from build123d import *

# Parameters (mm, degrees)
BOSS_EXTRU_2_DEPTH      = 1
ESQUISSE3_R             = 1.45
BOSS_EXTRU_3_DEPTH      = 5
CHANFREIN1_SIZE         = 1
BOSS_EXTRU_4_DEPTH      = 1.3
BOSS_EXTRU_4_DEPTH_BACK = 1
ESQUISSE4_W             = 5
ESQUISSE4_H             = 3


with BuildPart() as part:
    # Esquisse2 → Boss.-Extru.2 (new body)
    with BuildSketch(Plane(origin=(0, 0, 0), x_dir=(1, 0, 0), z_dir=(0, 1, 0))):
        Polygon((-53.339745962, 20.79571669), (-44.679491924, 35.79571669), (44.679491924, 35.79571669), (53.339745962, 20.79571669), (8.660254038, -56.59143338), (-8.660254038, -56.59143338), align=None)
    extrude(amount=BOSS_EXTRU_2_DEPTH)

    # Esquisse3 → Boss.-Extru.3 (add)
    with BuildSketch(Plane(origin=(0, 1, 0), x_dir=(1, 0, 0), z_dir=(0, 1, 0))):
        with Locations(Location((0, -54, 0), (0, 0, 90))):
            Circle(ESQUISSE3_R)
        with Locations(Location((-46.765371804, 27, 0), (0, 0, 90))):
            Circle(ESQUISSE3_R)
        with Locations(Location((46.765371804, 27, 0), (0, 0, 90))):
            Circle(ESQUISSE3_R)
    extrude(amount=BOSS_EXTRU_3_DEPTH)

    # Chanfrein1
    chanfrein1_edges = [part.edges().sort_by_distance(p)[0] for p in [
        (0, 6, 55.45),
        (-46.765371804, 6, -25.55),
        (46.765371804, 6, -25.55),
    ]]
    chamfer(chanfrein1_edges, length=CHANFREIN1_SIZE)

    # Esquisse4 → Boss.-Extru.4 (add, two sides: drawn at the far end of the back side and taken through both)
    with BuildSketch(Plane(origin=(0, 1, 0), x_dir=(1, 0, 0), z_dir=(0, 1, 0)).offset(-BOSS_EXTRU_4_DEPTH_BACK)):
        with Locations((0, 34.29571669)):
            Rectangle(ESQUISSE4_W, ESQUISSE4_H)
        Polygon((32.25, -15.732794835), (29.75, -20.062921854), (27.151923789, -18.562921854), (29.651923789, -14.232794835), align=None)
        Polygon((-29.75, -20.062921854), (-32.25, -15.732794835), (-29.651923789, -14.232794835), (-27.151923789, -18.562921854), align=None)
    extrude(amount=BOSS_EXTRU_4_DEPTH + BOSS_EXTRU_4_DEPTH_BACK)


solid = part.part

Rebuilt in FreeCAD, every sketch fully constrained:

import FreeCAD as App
import Part
import Sketcher
Q = App.Units.Quantity


def edges_at(feature, points):
    """Names of the edges that pass closest to the given points."""
    edges = feature.Shape.Edges
    near = lambda p: min(range(len(edges)), key=lambda i: edges[i].distToShape(Part.Vertex(*p))[0])
    return sorted({f"Edge{near(p) + 1}" for p in points})

doc = App.newDocument("Part")
params = doc.addObject("Spreadsheet::Sheet", "Params")
for row, (alias, value) in enumerate([
    ("pad1_length", "1 mm"),
    ("sketch2_diameter", "2.9 mm"),
    ("pad2_length", "5 mm"),
    ("chamfer_size", "1 mm"),
    ("sketch3_width", "5 mm"),
    ("sketch3_height", "3 mm"),
    ("sketch3_length", "5 mm"),
    ("sketch3_length2", "3 mm"),
    ("pad3_length", "1.3 mm"),
    ("pad3_length2", "1 mm"),
], start=1):
    params.set(f"A{row}", alias)
    params.set(f"B{row}", "=" + value)
    params.setAlias(f"B{row}", alias)

body = doc.addObject("PartDesign::Body", "Body")

# Sketch on XZ plane
sketch1 = doc.addObject("Sketcher::SketchObject", "Sketch")
body.addObject(sketch1)
sketch1.AttachmentSupport = (doc.XZ_Plane, [""])
sketch1.MapMode = "FlatFace"
sketch1.addGeometry([
    Part.LineSegment(App.Vector(-45, -36, 0), App.Vector(-53, -21, 0)),  # 0
    Part.LineSegment(App.Vector(-53, -21, 0), App.Vector(-9, 57, 0)),  # 1
    Part.LineSegment(App.Vector(-9, 57, 0), App.Vector(9, 57, 0)),  # 2
    Part.LineSegment(App.Vector(9, 57, 0), App.Vector(53, -21, 0)),  # 3
    Part.LineSegment(App.Vector(53, -21, 0), App.Vector(45, -36, 0)),  # 4
    Part.LineSegment(App.Vector(45, -36, 0), App.Vector(-45, -36, 0)),  # 5
], False)
sketch1.addConstraint([
    Sketcher.Constraint("Coincident", 0, 2, 1, 1),
    Sketcher.Constraint("Coincident", 1, 2, 2, 1),
    Sketcher.Constraint("Coincident", 2, 2, 3, 1),
    Sketcher.Constraint("Coincident", 3, 2, 4, 1),
    Sketcher.Constraint("Coincident", 4, 2, 5, 1),
    Sketcher.Constraint("Coincident", 5, 2, 0, 1),
    Sketcher.Constraint("Horizontal", 2),
    Sketcher.Constraint("Horizontal", 5),
    Sketcher.Constraint("Symmetric", 0, 2, 3, 2, -2),
    Sketcher.Constraint("Parallel", 0, 3),
    Sketcher.Constraint("Parallel", 1, 4),
    Sketcher.Constraint("Equal", 1, 3),
    Sketcher.Constraint("Angle", 0, Q("120 deg")),
    Sketcher.Constraint("DistanceX", 0, 2, 2, 2, 62.0),
    Sketcher.Constraint("DistanceY", 4, 2, 3, 2, 15.0),
    Sketcher.Constraint("DistanceX", 2, 1, 2, 2, 17.320508),
    Sketcher.Constraint("DistanceY", 0, 2, -1, 1, 20.795717),
])
pad1 = doc.addObject("PartDesign::Pad", "Pad")
body.addObject(pad1)
pad1.Profile = sketch1
pad1.setExpression("Length", "Params.pad1_length")
pad1.Reversed = True

# Sketch on XZ plane
sketch2 = doc.addObject("Sketcher::SketchObject", "Sketch001")
body.addObject(sketch2)
sketch2.AttachmentSupport = (doc.XZ_Plane, [""])
sketch2.MapMode = "FlatFace"
sketch2.AttachmentOffset = App.Placement(App.Vector(0, 0, -1), App.Rotation())
sketch2.addGeometry([
    Part.Circle(App.Vector(0, 54, 0), App.Vector(0, 0, 1), 1.4),
    Part.Circle(App.Vector(-46.8, -27, 0), App.Vector(0, 0, 1), 1.4),
    Part.Circle(App.Vector(46.8, -27, 0), App.Vector(0, 0, 1), 1.4),
], False)
sketch2.addConstraint([
    Sketcher.Constraint("Equal", 0, 1),
    Sketcher.Constraint("Equal", 1, 2),
    Sketcher.Constraint("Symmetric", 1, 3, 2, 3, -2),
    Sketcher.Constraint("PointOnObject", 0, 3, -2),
    Sketcher.Constraint("Diameter", 0, 2.9),
    Sketcher.Constraint("DistanceY", -1, 1, 0, 3, 54.0),
    Sketcher.Constraint("DistanceY", 1, 3, -1, 1, 27.0),
    Sketcher.Constraint("DistanceX", 1, 3, -1, 1, 46.765372),
])
sketch2.setExpression("Constraints[4]", "Params.sketch2_diameter")
pad2 = doc.addObject("PartDesign::Pad", "Pad001")
body.addObject(pad2)
pad2.Profile = sketch2
pad2.setExpression("Length", "Params.pad2_length")
pad2.Reversed = True
doc.recompute()

chamfer = doc.addObject("PartDesign::Chamfer", "Chamfer")
body.addObject(chamfer)
chamfer.Base = (pad2, edges_at(pad2, [(0, 6, 55.45), (-46.765, 6, -25.55), (46.765, 6, -25.55)]))
chamfer.setExpression("Size", "Params.chamfer_size")

# Sketch on XZ plane
sketch3 = doc.addObject("Sketcher::SketchObject", "Sketch002")
body.addObject(sketch3)
sketch3.AttachmentSupport = (doc.XZ_Plane, [""])
sketch3.MapMode = "FlatFace"
sketch3.AttachmentOffset = App.Placement(App.Vector(0, 0, -1), App.Rotation())
sketch3.addGeometry([
    Part.LineSegment(App.Vector(-2.5, -35.8, 0), App.Vector(-2.5, -32.8, 0)),  # 0
    Part.LineSegment(App.Vector(-2.5, -32.8, 0), App.Vector(2.5, -32.8, 0)),  # 1
    Part.LineSegment(App.Vector(2.5, -32.8, 0), App.Vector(2.5, -35.8, 0)),  # 2
    Part.LineSegment(App.Vector(2.5, -35.8, 0), App.Vector(-2.5, -35.8, 0)),  # 3
    Part.LineSegment(App.Vector(29.8, 20.1, 0), App.Vector(32.2, 15.7, 0)),  # 4
    Part.LineSegment(App.Vector(32.2, 15.7, 0), App.Vector(29.7, 14.2, 0)),  # 5
    Part.LineSegment(App.Vector(29.7, 14.2, 0), App.Vector(27.2, 18.6, 0)),  # 6
    Part.LineSegment(App.Vector(27.2, 18.6, 0), App.Vector(29.8, 20.1, 0)),  # 7
    Part.LineSegment(App.Vector(-32.2, 15.7, 0), App.Vector(-29.8, 20.1, 0)),  # 8
    Part.LineSegment(App.Vector(-29.8, 20.1, 0), App.Vector(-27.2, 18.6, 0)),  # 9
    Part.LineSegment(App.Vector(-27.2, 18.6, 0), App.Vector(-29.7, 14.2, 0)),  # 10
    Part.LineSegment(App.Vector(-29.7, 14.2, 0), App.Vector(-32.2, 15.7, 0)),  # 11
], False)
sketch3.addConstraint([
    Sketcher.Constraint("Coincident", 0, 2, 1, 1),
    Sketcher.Constraint("Coincident", 1, 2, 2, 1),
    Sketcher.Constraint("Coincident", 2, 2, 3, 1),
    Sketcher.Constraint("Coincident", 3, 2, 0, 1),
    Sketcher.Constraint("Coincident", 4, 2, 5, 1),
    Sketcher.Constraint("Coincident", 5, 2, 6, 1),
    Sketcher.Constraint("Coincident", 6, 2, 7, 1),
    Sketcher.Constraint("Coincident", 7, 2, 4, 1),
    Sketcher.Constraint("Coincident", 8, 2, 9, 1),
    Sketcher.Constraint("Coincident", 9, 2, 10, 1),
    Sketcher.Constraint("Coincident", 10, 2, 11, 1),
    Sketcher.Constraint("Coincident", 11, 2, 8, 1),
    Sketcher.Constraint("Vertical", 0),
    Sketcher.Constraint("Horizontal", 1),
    Sketcher.Constraint("Vertical", 2),
    Sketcher.Constraint("Horizontal", 3),
    Sketcher.Constraint("Symmetric", 7, 2, 8, 2, -2),
    Sketcher.Constraint("Symmetric", 6, 2, 9, 2, -2),
    Sketcher.Constraint("Symmetric", 5, 2, 10, 2, -2),
    Sketcher.Constraint("Symmetric", 4, 2, 11, 2, -2),
    Sketcher.Constraint("Perpendicular", 4, 5),
    Sketcher.Constraint("Perpendicular", 5, 6),
    Sketcher.Constraint("Perpendicular", 6, 7),
    Sketcher.Constraint("DistanceX", 1, 1, 1, 2, 5.0),
    Sketcher.Constraint("DistanceY", 0, 1, 0, 2, 3.0),
    Sketcher.Constraint("Angle", 4, Q("-60 deg")),
    Sketcher.Constraint("Distance", 4, 5.0),
    Sketcher.Constraint("Distance", 5, 3.0),
    Sketcher.Constraint("DistanceX", 0, 2, -1, 1, 2.5),
    Sketcher.Constraint("DistanceX", 8, 2, 7, 2, 59.5),
    Sketcher.Constraint("DistanceY", -1, 1, 6, 2, 18.562922),
    Sketcher.Constraint("DistanceY", 1, 2, 4, 2, 48.528512),
])
sketch3.setExpression("Constraints[23]", "Params.sketch3_width")
sketch3.setExpression("Constraints[24]", "Params.sketch3_height")
sketch3.setExpression("Constraints[26]", "Params.sketch3_length")
sketch3.setExpression("Constraints[27]", "Params.sketch3_length2")
pad3 = doc.addObject("PartDesign::Pad", "Pad002")
body.addObject(pad3)
pad3.Profile = sketch3
pad3.Type = "TwoLengths"
pad3.setExpression("Length", "Params.pad3_length")
pad3.setExpression("Length2", "Params.pad3_length2")
pad3.Reversed = True

doc.recompute()
